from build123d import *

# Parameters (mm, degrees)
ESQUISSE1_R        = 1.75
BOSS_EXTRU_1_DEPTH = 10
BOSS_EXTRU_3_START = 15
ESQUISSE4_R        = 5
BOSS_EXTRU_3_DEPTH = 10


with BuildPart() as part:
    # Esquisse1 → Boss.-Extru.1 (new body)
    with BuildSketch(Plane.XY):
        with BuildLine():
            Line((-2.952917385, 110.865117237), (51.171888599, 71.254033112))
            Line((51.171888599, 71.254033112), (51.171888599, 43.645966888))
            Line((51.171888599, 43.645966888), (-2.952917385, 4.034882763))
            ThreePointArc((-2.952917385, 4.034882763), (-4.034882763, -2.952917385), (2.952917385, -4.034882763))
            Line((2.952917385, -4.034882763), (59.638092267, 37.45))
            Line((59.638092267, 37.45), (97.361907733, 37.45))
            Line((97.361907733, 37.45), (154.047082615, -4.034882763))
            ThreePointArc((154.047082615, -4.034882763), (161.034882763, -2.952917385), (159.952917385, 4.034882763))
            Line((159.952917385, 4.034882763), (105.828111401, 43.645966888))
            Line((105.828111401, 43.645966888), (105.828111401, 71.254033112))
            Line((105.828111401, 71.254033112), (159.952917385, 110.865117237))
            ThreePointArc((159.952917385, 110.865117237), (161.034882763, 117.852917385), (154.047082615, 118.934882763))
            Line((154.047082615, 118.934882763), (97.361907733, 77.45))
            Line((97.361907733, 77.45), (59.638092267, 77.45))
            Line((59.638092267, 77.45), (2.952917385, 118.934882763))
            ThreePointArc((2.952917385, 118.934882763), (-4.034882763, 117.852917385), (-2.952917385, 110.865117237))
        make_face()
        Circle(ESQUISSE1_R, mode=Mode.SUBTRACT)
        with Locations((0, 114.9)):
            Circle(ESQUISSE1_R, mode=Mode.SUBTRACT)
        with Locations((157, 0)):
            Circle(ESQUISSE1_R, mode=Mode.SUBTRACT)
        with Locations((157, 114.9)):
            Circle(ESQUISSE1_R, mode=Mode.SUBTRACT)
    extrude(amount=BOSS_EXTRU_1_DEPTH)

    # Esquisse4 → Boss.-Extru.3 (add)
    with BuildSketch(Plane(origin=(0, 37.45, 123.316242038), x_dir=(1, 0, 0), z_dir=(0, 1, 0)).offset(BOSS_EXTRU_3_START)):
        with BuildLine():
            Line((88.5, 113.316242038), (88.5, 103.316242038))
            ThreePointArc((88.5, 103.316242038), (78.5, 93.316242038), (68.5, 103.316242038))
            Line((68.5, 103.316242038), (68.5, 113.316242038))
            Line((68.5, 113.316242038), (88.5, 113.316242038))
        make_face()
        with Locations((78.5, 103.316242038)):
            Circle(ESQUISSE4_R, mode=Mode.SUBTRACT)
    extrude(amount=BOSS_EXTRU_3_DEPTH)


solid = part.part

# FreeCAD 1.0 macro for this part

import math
import FreeCAD as App
import Part
import Sketcher

doc = App.newDocument("Part")
params = doc.addObject("Spreadsheet::Sheet", "Params")
for row, (alias, value) in enumerate([
    ("sketch1_radius", "5 mm"),
    ("sketch1_diameter", "3.5 mm"),
    ("pad1_length", "10 mm"),
    ("sketch2_diameter", "10 mm"),
    ("sketch2_radius", "10 mm"),
    ("sketch2_height", "10 mm"),
    ("pad2_length", "10 mm"),
], start=1):
    params.set(f"A{row}", alias)
    params.set(f"B{row}", "=" + value)
    params.setAlias(f"B{row}", alias)

body = doc.addObject("PartDesign::Body", "Body")

sketch1 = doc.addObject("Sketcher::SketchObject", "Sketch")
body.addObject(sketch1)
sketch1.AttachmentSupport = (doc.XY_Plane, [""])
sketch1.MapMode = "FlatFace"
sketch1.addGeometry([
    Part.LineSegment(App.Vector(-3, 110.9, 0), App.Vector(51.2, 71.3, 0)),
    Part.LineSegment(App.Vector(51.2, 71.3, 0), App.Vector(51.2, 43.6, 0)),
    Part.LineSegment(App.Vector(51.2, 43.6, 0), App.Vector(-3, 4, 0)),
    Part.ArcOfCircle(Part.Circle(App.Vector(0, 0, 0), App.Vector(0, 0, 1), 5), math.radians(126), math.radians(306)),
    Part.LineSegment(App.Vector(3, -4, 0), App.Vector(59.6, 37.5, 0)),
    Part.LineSegment(App.Vector(59.6, 37.5, 0), App.Vector(97.4, 37.5, 0)),
    Part.LineSegment(App.Vector(97.4, 37.5, 0), App.Vector(154, -4, 0)),
    Part.ArcOfCircle(Part.Circle(App.Vector(157, 0, 0), App.Vector(0, 0, 1), 5), math.radians(-126), math.radians(54)),
    Part.LineSegment(App.Vector(160, 4, 0), App.Vector(105.8, 43.6, 0)),
    Part.LineSegment(App.Vector(105.8, 43.6, 0), App.Vector(105.8, 71.3, 0)),
    Part.LineSegment(App.Vector(105.8, 71.3, 0), App.Vector(160, 110.9, 0)),
    Part.ArcOfCircle(Part.Circle(App.Vector(157, 114.9, 0), App.Vector(0, 0, 1), 5), math.radians(-54), math.radians(126)),
    Part.LineSegment(App.Vector(154, 118.9, 0), App.Vector(97.4, 77.5, 0)),
    Part.LineSegment(App.Vector(97.4, 77.5, 0), App.Vector(59.6, 77.5, 0)),
    Part.LineSegment(App.Vector(59.6, 77.5, 0), App.Vector(3, 118.9, 0)),
    Part.ArcOfCircle(Part.Circle(App.Vector(0, 114.9, 0), App.Vector(0, 0, 1), 5), math.radians(54), math.radians(234)),
    Part.Circle(App.Vector(0, 0, 0), App.Vector(0, 0, 1), 1.8),
    Part.Circle(App.Vector(157, 0, 0), App.Vector(0, 0, 1), 1.8),
    Part.Circle(App.Vector(0, 114.9, 0), App.Vector(0, 0, 1), 1.8),
    Part.Circle(App.Vector(157, 114.9, 0), App.Vector(0, 0, 1), 1.8),
], False)
sketch1.addConstraint([
    Sketcher.Constraint("Coincident", 0, 2, 1, 1),
    Sketcher.Constraint("Coincident", 1, 2, 2, 1),
    Sketcher.Constraint("Tangent", 2, 2, 3, 1),
    Sketcher.Constraint("Tangent", 3, 2, 4, 1),
    Sketcher.Constraint("Coincident", 4, 2, 5, 1),
    Sketcher.Constraint("Coincident", 5, 2, 6, 1),
    Sketcher.Constraint("Tangent", 6, 2, 7, 1),
    Sketcher.Constraint("Tangent", 7, 2, 8, 1),
    Sketcher.Constraint("Coincident", 8, 2, 9, 1),
    Sketcher.Constraint("Coincident", 9, 2, 10, 1),
    Sketcher.Constraint("Tangent", 10, 2, 11, 1),
    Sketcher.Constraint("Tangent", 11, 2, 12, 1),
    Sketcher.Constraint("Coincident", 12, 2, 13, 1),
    Sketcher.Constraint("Coincident", 13, 2, 14, 1),
    Sketcher.Constraint("Tangent", 14, 2, 15, 1),
    Sketcher.Constraint("Tangent", 15, 2, 0, 1),
    Sketcher.Constraint("Vertical", 1),
    Sketcher.Constraint("Horizontal", 5),
    Sketcher.Constraint("Vertical", 9),
    Sketcher.Constraint("Horizontal", 13),
    Sketcher.Constraint("Coincident", 3, 3, -1, 1),
    Sketcher.Constraint("Coincident", 16, 3, -1, 1),
    Sketcher.Constraint("Coincident", 17, 3, 7, 3),
    Sketcher.Constraint("Coincident", 18, 3, 15, 3),
    Sketcher.Constraint("Coincident", 19, 3, 11, 3),
    Sketcher.Constraint("Equal", 3, 7),
    Sketcher.Constraint("Equal", 7, 11),
    Sketcher.Constraint("Equal", 11, 15),
    Sketcher.Constraint("Equal", 16, 17),
    Sketcher.Constraint("Equal", 17, 18),
    Sketcher.Constraint("Equal", 18, 19),
    Sketcher.Constraint("PointOnObject", 7, 3, -1),
    Sketcher.Constraint("PointOnObject", 15, 3, -2),
    Sketcher.Constraint("Parallel", 2, 4),
    Sketcher.Constraint("Parallel", 0, 6),
    Sketcher.Constraint("Parallel", 6, 8),
    Sketcher.Constraint("Parallel", 4, 10),
    Sketcher.Constraint("Parallel", 10, 12),
    Sketcher.Constraint("Parallel", 8, 14),
    Sketcher.Constraint("Horizontal", 11, 3, 15, 3),
    Sketcher.Constraint("Horizontal", 3, 2, 6, 2),
    Sketcher.Constraint("Horizontal", 1, 2, 8, 2),
    Sketcher.Constraint("Horizontal", 0, 2, 9, 2),
    Sketcher.Constraint("Vertical", 5, 2, 12, 2),
    Sketcher.Constraint("Radius", 3, 5.0),
    Sketcher.Constraint("Diameter", 16, 3.5),
    Sketcher.Constraint("DistanceX", -1, 1, 7, 3, 157.0),
    Sketcher.Constraint("DistanceY", 5, 2, 12, 2, 40.0),
    Sketcher.Constraint("DistanceY", -1, 1, 11, 3, 114.9),
    Sketcher.Constraint("Distance", 0, 67.071101),
    Sketcher.Constraint("DistanceX", 5, 1, 5, 2, 37.723815),
])
sketch1.setExpression("Constraints[44]", "Params.sketch1_radius")
sketch1.setExpression("Constraints[45]", "Params.sketch1_diameter")
pad1 = doc.addObject("PartDesign::Pad", "Pad")
body.addObject(pad1)
pad1.Profile = sketch1
pad1.setExpression("Length", "Params.pad1_length")

sketch2 = doc.addObject("Sketcher::SketchObject", "Sketch001")
body.addObject(sketch2)
sketch2.AttachmentSupport = (doc.XZ_Plane, [""])
sketch2.MapMode = "FlatFace"
sketch2.AttachmentOffset = App.Placement(App.Vector(0, 0, -52.45), App.Rotation())
sketch2.addGeometry([
    Part.LineSegment(App.Vector(88, 20, 0), App.Vector(88, 10, 0)),
    Part.LineSegment(App.Vector(88, 10, 0), App.Vector(68, 10, 0)),
    Part.LineSegment(App.Vector(68, 10, 0), App.Vector(68, 20, 0)),
    Part.ArcOfCircle(Part.Circle(App.Vector(78, 20, 0), App.Vector(0, 0, 1), 10), math.radians(0), math.radians(180)),
    Part.Circle(App.Vector(78, 20, 0), App.Vector(0, 0, 1), 5),
], False)
sketch2.addConstraint([
    Sketcher.Constraint("Coincident", 0, 2, 1, 1),
    Sketcher.Constraint("Coincident", 1, 2, 2, 1),
    Sketcher.Constraint("Tangent", 2, 2, 3, 2),
    Sketcher.Constraint("Tangent", 3, 1, 0, 1),
    Sketcher.Constraint("Vertical", 0),
    Sketcher.Constraint("Horizontal", 1),
    Sketcher.Constraint("Vertical", 2),
    Sketcher.Constraint("Coincident", 4, 3, 3, 3),
    Sketcher.Constraint("Diameter", 4, 10.0),
    Sketcher.Constraint("Radius", 3, 10.0),
    Sketcher.Constraint("DistanceY", 0, 2, 0, 1, 10.0),
    Sketcher.Constraint("DistanceY", -1, 1, 3, 3, 20.0),
    Sketcher.Constraint("DistanceX", -1, 1, 3, 3, 78.5),
])
sketch2.setExpression("Constraints[8]", "Params.sketch2_diameter")
sketch2.setExpression("Constraints[9]", "Params.sketch2_radius")
sketch2.setExpression("Constraints[10]", "Params.sketch2_height")
pad2 = doc.addObject("PartDesign::Pad", "Pad001")
body.addObject(pad2)
pad2.Profile = sketch2
pad2.setExpression("Length", "Params.pad2_length")
pad2.Reversed = True

doc.recompute()
